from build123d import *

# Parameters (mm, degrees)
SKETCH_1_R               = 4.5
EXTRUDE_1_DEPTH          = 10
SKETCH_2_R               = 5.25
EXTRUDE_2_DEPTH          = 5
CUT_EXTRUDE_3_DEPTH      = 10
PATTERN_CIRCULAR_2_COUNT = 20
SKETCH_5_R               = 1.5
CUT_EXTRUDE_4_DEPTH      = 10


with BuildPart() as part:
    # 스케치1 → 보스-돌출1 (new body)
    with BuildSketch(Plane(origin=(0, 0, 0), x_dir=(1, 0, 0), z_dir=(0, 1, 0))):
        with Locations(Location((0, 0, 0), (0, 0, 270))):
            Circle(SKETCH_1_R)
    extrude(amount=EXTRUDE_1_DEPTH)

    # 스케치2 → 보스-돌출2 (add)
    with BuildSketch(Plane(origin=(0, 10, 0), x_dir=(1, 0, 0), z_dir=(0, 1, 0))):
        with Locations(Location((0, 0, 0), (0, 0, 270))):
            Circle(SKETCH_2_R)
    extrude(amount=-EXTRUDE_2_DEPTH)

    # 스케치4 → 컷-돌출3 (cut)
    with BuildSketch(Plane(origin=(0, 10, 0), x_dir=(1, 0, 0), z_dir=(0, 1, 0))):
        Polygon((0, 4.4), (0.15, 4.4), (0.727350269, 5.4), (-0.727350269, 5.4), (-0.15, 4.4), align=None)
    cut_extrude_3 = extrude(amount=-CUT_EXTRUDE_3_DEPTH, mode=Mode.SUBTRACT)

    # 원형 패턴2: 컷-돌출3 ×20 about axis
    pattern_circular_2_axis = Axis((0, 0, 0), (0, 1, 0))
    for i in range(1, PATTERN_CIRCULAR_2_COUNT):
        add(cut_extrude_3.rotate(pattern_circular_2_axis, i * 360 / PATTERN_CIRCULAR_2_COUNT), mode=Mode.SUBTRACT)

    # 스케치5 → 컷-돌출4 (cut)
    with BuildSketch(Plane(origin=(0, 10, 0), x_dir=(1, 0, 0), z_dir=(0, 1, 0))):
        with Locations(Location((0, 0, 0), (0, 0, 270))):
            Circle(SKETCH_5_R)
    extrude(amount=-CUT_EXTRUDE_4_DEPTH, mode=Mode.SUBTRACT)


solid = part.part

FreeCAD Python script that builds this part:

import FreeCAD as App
import Part
import Sketcher

V = App.Vector
Q = App.Units.Quantity


def add_polygon(sketch, points):
    """Adds a closed chain of lines whose ends are joined by coincident constraints."""
    first, n = sketch.GeometryCount, len(points)
    for a, b in zip(points, points[1:] + points[:1]):
        sketch.addGeometry(Part.LineSegment(App.Vector(*a, 0), App.Vector(*b, 0)), False)
    for i in range(n):
        sketch.addConstraint(Sketcher.Constraint("Coincident", first + i, 2, first + (i + 1) % n, 1))

doc = App.newDocument("Part")
body = doc.addObject("PartDesign::Body", "Body")

sketch1 = body.newObject("Sketcher::SketchObject", "Sketch")
sketch1.AttachmentSupport = (doc.getObject("XZ_Plane"), [""])
sketch1.MapMode = "FlatFace"
sketch1.addGeometry(Part.Circle(V(0, 0, 0), V(0, 0, 1), 4.5), False)
sketch1.addConstraint([
    Sketcher.Constraint("Coincident", 0, 3, -1, 1),
    Sketcher.Constraint("Diameter", 0, 9.0),
])
pad1 = body.newObject("PartDesign::Pad", "Pad")
pad1.Profile = sketch1
pad1.Length = 10
pad1.Reversed = True

sketch2 = body.newObject("Sketcher::SketchObject", "Sketch001")
sketch2.AttachmentSupport = (doc.getObject("XZ_Plane"), [""])
sketch2.MapMode = "FlatFace"
sketch2.AttachmentOffset = App.Placement(V(0, 0, -10), App.Rotation())
sketch2.addGeometry(Part.Circle(V(0, 0, 0), V(0, 0, 1), 5), False)
sketch2.addConstraint([
    Sketcher.Constraint("Coincident", 0, 3, -1, 1),
    Sketcher.Constraint("Diameter", 0, 10.5),
])
pad2 = body.newObject("PartDesign::Pad", "Pad001")
pad2.Profile = sketch2
pad2.Length = 5

sketch3 = body.newObject("Sketcher::SketchObject", "Sketch002")
sketch3.AttachmentSupport = (doc.getObject("XZ_Plane"), [""])
sketch3.MapMode = "FlatFace"
sketch3.AttachmentOffset = App.Placement(V(0, 0, -10), App.Rotation())
add_polygon(sketch3, [(0.15, -4.4), (0.73, -5.4), (-0.73, -5.4), (-0.15, -4.4)])
sketch3.addConstraint([
    Sketcher.Constraint("Horizontal", 1),
    Sketcher.Constraint("Horizontal", 3),
    Sketcher.Constraint("Equal", 0, 2),
    Sketcher.Constraint("Angle", 0, Q("-60 deg")),
    Sketcher.Constraint("DistanceX", 3, 1, 3, 2, 0.3),
    Sketcher.Constraint("DistanceY", 1, 2, 2, 2, 1.0),
    Sketcher.Constraint("DistanceY", 0, 2, -1, 1, 5.4),
    Sketcher.Constraint("DistanceX", 2, 2, -1, 1, 0.15),
])
pocket1 = body.newObject("PartDesign::Pocket", "Pocket")
pocket1.Profile = sketch3
pocket1.Length = 10
pocket1.Reversed = True
doc.recompute()

polarpattern = body.newObject("PartDesign::PolarPattern", "PolarPattern")
polarpattern.Originals = [pocket1]
polarpattern.Axis = (doc.getObject("Y_Axis"), [""])
polarpattern.Angle = 360
polarpattern.Occurrences = 20
body.Tip = polarpattern

sketch4 = body.newObject("Sketcher::SketchObject", "Sketch003")
sketch4.AttachmentSupport = (doc.getObject("XZ_Plane"), [""])
sketch4.MapMode = "FlatFace"
sketch4.AttachmentOffset = App.Placement(V(0, 0, -10), App.Rotation())
sketch4.addGeometry(Part.Circle(V(0, 0, 0), V(0, 0, 1), 1.5), False)
sketch4.addConstraint([
    Sketcher.Constraint("Coincident", 0, 3, -1, 1),
    Sketcher.Constraint("Diameter", 0, 3.0),
])
pocket2 = body.newObject("PartDesign::Pocket", "Pocket001")
pocket2.Profile = sketch4
pocket2.Length = 10
pocket2.Reversed = True

doc.recompute()
